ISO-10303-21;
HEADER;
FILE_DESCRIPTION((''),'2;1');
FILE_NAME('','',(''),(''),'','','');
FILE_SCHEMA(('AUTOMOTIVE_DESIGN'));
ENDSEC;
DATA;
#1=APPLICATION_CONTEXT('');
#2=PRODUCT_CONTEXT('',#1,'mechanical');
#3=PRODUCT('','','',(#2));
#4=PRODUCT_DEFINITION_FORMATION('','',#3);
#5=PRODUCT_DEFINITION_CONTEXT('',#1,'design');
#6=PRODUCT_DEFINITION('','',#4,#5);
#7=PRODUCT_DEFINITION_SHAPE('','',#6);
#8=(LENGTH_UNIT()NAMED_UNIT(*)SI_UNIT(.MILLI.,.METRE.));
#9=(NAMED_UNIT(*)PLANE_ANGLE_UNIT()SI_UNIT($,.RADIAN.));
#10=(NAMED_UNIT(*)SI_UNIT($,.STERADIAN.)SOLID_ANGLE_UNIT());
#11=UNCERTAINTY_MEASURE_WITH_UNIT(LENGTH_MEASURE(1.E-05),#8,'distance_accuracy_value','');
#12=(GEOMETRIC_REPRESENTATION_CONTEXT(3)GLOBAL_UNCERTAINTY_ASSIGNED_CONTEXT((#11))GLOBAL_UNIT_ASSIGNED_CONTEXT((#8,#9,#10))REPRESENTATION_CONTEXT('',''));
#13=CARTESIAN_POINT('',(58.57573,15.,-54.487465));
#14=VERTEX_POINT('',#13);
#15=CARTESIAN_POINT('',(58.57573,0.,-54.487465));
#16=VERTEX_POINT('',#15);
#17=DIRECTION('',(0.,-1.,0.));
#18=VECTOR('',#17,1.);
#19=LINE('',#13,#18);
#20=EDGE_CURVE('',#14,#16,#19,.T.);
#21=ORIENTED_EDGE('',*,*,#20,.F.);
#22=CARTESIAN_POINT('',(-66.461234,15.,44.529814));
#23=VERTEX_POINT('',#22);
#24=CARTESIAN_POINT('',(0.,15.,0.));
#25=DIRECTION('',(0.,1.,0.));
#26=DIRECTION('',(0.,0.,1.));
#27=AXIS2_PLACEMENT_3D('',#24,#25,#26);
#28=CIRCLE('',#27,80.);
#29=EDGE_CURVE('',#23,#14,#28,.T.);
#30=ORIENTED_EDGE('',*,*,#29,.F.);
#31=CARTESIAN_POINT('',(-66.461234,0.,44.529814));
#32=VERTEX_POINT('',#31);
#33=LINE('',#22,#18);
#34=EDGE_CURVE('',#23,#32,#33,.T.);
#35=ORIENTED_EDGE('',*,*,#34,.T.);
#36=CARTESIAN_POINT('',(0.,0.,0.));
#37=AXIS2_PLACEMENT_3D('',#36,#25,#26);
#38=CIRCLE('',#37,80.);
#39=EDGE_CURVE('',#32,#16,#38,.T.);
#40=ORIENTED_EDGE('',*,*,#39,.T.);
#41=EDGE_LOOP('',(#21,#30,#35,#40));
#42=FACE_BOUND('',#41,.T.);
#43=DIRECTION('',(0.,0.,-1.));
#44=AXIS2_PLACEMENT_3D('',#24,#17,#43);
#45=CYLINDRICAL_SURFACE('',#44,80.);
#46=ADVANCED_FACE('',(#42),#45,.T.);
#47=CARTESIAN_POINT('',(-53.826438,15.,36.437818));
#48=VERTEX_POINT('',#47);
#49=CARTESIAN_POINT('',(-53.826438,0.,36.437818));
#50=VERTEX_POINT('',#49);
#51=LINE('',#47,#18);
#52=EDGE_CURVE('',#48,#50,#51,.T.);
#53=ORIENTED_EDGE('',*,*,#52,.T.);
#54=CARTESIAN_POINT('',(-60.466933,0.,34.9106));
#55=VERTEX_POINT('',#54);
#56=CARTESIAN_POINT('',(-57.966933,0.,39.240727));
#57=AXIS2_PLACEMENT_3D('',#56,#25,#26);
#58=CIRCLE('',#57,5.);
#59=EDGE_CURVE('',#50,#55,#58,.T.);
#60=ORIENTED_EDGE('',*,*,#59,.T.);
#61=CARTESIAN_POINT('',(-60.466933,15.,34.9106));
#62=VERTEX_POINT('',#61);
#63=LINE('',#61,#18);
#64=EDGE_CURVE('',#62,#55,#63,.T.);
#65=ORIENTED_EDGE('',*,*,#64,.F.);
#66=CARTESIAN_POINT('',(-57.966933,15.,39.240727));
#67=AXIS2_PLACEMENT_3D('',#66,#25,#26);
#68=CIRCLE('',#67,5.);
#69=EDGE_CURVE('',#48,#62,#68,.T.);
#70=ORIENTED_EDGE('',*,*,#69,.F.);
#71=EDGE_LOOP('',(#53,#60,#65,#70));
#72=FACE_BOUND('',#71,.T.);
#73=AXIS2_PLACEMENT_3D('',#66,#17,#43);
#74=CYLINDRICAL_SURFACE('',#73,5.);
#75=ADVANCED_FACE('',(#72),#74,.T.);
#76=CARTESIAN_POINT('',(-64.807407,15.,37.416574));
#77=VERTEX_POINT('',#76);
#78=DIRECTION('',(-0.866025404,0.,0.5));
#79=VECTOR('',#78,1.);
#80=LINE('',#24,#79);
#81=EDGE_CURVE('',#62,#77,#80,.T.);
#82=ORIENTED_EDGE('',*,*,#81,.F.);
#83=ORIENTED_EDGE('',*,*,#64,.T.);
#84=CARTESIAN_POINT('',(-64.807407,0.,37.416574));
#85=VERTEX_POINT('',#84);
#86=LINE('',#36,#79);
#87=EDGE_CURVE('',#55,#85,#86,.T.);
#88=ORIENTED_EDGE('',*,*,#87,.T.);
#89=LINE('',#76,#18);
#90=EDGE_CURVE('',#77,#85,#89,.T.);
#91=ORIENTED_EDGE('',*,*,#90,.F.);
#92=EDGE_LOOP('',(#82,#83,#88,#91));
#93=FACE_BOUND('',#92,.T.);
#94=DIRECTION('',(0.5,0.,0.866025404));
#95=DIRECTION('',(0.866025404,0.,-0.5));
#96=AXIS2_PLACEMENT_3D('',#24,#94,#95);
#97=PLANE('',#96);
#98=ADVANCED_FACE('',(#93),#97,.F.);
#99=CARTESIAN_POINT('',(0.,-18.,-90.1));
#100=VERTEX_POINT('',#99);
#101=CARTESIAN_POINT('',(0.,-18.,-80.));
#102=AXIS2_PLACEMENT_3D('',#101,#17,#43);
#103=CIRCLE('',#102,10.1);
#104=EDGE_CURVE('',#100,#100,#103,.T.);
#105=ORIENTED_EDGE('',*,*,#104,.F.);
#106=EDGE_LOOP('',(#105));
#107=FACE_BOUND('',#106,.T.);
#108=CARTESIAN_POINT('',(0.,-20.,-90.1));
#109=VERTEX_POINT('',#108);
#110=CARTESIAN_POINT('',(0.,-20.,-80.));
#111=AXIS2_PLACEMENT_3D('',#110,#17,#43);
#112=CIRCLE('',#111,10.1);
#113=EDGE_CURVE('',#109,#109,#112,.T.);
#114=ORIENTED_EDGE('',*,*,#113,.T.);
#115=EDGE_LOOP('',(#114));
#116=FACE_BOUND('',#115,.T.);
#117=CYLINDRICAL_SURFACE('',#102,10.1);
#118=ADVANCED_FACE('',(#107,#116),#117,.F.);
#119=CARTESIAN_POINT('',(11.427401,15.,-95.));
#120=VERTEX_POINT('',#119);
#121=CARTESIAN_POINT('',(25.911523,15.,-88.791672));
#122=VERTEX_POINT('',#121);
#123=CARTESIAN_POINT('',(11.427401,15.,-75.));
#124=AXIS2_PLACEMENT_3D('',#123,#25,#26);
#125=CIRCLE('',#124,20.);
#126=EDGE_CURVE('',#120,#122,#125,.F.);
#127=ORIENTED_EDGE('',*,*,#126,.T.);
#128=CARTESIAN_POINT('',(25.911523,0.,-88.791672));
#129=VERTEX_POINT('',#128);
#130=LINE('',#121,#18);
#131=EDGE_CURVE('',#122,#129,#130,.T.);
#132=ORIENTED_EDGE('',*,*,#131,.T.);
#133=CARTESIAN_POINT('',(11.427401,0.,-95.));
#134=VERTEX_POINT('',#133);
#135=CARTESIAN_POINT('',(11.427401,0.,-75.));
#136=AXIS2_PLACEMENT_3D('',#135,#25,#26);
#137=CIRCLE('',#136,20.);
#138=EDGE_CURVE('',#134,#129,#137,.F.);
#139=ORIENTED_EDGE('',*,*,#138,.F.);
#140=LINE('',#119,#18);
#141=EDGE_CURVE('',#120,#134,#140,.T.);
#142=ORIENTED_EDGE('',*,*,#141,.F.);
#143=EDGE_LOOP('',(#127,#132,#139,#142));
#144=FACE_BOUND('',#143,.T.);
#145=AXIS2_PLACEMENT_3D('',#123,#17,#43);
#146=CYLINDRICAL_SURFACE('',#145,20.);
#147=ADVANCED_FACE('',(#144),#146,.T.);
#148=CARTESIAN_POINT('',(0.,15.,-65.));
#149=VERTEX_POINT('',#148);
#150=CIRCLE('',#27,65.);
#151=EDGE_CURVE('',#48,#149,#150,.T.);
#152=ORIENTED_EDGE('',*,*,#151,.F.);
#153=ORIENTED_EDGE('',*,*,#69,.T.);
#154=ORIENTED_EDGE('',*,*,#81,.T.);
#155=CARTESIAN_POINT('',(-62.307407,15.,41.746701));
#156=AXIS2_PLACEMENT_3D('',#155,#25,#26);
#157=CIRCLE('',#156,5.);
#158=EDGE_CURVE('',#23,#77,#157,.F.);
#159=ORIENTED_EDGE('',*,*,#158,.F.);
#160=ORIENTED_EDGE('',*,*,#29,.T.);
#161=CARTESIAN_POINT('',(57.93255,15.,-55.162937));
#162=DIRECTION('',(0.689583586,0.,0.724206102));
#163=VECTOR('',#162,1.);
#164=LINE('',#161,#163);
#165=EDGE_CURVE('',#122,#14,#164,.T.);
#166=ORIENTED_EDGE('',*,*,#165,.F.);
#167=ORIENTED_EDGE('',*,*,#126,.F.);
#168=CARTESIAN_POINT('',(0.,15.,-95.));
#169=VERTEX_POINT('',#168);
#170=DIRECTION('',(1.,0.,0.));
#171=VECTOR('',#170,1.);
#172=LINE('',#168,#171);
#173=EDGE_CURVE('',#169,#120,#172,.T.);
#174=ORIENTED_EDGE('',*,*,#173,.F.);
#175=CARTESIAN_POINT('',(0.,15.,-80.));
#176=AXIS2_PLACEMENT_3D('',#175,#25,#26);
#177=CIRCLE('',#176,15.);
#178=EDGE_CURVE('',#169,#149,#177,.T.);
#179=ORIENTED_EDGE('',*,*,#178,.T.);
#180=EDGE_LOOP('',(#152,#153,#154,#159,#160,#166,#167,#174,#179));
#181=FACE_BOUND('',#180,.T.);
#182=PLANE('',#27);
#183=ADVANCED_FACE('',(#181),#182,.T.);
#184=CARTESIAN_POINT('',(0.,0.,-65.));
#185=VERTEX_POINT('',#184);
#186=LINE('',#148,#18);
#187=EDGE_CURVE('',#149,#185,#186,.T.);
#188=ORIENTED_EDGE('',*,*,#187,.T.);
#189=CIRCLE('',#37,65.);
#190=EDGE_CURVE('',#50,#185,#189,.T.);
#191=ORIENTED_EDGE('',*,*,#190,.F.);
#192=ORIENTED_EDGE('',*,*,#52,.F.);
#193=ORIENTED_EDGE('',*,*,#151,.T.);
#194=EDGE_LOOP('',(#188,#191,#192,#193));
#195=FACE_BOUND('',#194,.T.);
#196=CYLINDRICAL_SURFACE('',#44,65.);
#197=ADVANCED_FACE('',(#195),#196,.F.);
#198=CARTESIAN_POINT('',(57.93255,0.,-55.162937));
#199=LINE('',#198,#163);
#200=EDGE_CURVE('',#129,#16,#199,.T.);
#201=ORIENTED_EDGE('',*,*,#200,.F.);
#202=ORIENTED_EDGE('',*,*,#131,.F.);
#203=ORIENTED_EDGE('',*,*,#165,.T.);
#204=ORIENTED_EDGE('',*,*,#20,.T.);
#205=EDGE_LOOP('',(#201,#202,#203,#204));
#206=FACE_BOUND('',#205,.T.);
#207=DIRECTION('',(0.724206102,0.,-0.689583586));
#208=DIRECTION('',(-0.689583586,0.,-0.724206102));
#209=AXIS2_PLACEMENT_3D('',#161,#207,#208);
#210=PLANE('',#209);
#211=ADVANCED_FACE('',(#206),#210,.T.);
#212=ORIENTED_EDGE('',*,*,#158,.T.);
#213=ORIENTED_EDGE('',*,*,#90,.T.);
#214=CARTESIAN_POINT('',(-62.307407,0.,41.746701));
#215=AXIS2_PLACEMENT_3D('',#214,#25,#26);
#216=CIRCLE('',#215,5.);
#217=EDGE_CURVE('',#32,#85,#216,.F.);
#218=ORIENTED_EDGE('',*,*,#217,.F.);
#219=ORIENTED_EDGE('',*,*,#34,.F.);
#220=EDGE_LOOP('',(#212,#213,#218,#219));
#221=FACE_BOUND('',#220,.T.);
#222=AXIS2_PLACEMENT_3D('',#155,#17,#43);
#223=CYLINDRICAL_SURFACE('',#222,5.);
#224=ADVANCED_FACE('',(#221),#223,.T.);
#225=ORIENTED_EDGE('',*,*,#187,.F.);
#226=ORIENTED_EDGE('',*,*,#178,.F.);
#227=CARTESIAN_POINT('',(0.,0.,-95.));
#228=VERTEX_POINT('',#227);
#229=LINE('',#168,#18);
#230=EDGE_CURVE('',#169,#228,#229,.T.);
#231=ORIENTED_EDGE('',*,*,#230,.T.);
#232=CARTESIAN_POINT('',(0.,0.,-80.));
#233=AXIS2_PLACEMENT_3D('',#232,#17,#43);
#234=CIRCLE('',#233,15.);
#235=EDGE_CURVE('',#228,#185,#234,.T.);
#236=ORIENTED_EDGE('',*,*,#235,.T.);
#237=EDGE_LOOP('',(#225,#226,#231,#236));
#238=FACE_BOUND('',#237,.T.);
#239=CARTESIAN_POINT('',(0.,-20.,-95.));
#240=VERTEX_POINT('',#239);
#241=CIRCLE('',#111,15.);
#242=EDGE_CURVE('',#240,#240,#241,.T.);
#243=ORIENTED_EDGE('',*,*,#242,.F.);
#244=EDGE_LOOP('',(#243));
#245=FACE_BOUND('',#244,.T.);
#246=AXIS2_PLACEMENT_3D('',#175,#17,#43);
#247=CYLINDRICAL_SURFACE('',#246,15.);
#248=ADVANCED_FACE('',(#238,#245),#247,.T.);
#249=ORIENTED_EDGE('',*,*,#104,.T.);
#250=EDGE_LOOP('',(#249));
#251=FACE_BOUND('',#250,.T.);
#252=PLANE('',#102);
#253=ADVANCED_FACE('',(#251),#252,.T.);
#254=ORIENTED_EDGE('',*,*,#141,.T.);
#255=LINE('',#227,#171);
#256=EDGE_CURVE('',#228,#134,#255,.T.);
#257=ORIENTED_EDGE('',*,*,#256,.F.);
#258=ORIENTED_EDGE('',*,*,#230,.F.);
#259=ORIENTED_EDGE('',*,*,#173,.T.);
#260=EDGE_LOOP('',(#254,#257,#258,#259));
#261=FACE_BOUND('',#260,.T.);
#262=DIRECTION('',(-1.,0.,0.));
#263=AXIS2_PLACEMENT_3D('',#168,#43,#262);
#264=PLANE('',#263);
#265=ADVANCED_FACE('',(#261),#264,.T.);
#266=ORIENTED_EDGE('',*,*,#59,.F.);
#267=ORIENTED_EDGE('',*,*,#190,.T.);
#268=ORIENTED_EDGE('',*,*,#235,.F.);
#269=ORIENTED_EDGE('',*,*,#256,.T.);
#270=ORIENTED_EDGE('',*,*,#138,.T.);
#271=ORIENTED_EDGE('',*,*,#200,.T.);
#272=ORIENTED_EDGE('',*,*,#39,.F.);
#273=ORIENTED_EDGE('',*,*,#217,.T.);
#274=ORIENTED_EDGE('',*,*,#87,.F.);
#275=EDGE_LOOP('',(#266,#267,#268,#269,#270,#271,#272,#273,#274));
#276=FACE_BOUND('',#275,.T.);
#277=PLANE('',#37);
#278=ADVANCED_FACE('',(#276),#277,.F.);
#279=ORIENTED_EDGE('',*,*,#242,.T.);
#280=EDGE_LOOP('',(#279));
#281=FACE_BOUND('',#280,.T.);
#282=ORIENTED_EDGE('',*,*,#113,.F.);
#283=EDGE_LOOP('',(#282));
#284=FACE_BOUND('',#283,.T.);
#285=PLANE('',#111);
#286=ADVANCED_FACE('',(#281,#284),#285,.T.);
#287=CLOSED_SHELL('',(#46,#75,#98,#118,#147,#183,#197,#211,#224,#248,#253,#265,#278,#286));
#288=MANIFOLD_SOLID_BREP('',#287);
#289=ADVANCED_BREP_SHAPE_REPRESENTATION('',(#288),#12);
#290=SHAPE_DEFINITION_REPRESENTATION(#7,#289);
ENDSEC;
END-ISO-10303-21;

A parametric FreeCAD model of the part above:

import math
import FreeCAD as App
import Part
import Sketcher
Q = App.Units.Quantity

doc = App.newDocument("Part")
params = doc.addObject("Spreadsheet::Sheet", "Params")
for row, (alias, value) in enumerate([
    ("sketch1_radius", "5 mm"),
    ("sketch1_radius2", "80 mm"),
    ("sketch1_radius3", "20 mm"),
    ("sketch1_radius4", "15 mm"),
    ("sketch1_radius5", "65 mm"),
    ("pad1_length", "15 mm"),
    ("sketch2_diameter", "30 mm"),
    ("pad2_length", "20 mm"),
    ("sketch3_diameter", "20.2 mm"),
    ("pocket1_length", "2 mm"),
], start=1):
    params.set(f"A{row}", alias)
    params.set(f"B{row}", "=" + value)
    params.setAlias(f"B{row}", alias)

body = doc.addObject("PartDesign::Body", "Body")

# Sketch on XZ plane
sketch1 = body.newObject("Sketcher::SketchObject", "Sketch")
sketch1.AttachmentSupport = (doc.getObject("XZ_Plane"), [""])
sketch1.MapMode = "FlatFace"
sketch1.addGeometry([
    Part.ArcOfCircle(Part.Circle(App.Vector(-57.966933, 39.240727, 0), App.Vector(0, 0, 1), 5), math.radians(-120), math.radians(-34.096044)),  # 0
    Part.LineSegment(App.Vector(-60.466933, 34.9106, 0), App.Vector(-64.807407, 37.416574, 0)),  # 1
    Part.ArcOfCircle(Part.Circle(App.Vector(-62.307407, 41.746701, 0), App.Vector(0, 0, 1), 5), math.radians(146.177446), math.radians(240)),  # 2
    Part.ArcOfCircle(Part.Circle(App.Vector(0, 0, 0), App.Vector(0, 0, 1), 80), math.radians(-42.929138), math.radians(146.177446)),  # 3
    Part.LineSegment(App.Vector(58.57573, -54.487465, 0), App.Vector(57.289371, -55.838409, 0)),  # 4
    Part.LineSegment(App.Vector(57.289371, -55.838409, 0), App.Vector(25.911523, -88.791672, 0)),  # 5
    Part.ArcOfCircle(Part.Circle(App.Vector(11.427401, -75, 0), App.Vector(0, 0, 1), 20), math.radians(-90), math.radians(-43.597155)),  # 6
    Part.LineSegment(App.Vector(11.427401, -95, 0), App.Vector(0, -95, 0)),  # 7
    Part.ArcOfCircle(Part.Circle(App.Vector(0, -80, 0), App.Vector(0, 0, 1), 15), math.radians(90), math.radians(270)),  # 8
    Part.ArcOfCircle(Part.Circle(App.Vector(0, 0, 0), App.Vector(0, 0, 1), 65), math.radians(-90), math.radians(145.903956)),  # 9
], False)
sketch1.addConstraint([
    Sketcher.Constraint("Tangent", 0, 1, 1, 1),
    Sketcher.Constraint("Tangent", 1, 2, 2, 2),
    Sketcher.Constraint("Tangent", 2, 1, 3, 2),
    Sketcher.Constraint("Coincident", 3, 1, 4, 1),
    Sketcher.Constraint("Coincident", 4, 2, 5, 1),
    Sketcher.Constraint("Tangent", 5, 2, 6, 2),
    Sketcher.Constraint("Tangent", 6, 1, 7, 1),
    Sketcher.Constraint("Tangent", 7, 2, 8, 2),
    Sketcher.Constraint("Tangent", 8, 1, 9, 1),
    Sketcher.Constraint("Tangent", 9, 2, 0, 2),
    Sketcher.Constraint("Horizontal", 7),
    Sketcher.Constraint("Coincident", 3, 3, -1, 1),
    Sketcher.Constraint("Coincident", 9, 3, -1, 1),
    Sketcher.Constraint("Equal", 0, 2),
    Sketcher.Constraint("PointOnObject", 8, 3, -2),
    Sketcher.Constraint("Parallel", 4, 5),
    Sketcher.Constraint("Radius", 0, Q("5 mm")),
    Sketcher.Constraint("Radius", 3, Q("80 mm")),
    Sketcher.Constraint("Radius", 6, Q("20 mm")),
    Sketcher.Constraint("Radius", 8, Q("15 mm")),
    Sketcher.Constraint("Radius", 9, Q("65 mm")),
    Sketcher.Constraint("Angle", 1, Q("150 deg")),
    Sketcher.Constraint("DistanceX", 7, 2, 7, 1, Q("11.427401 mm")),
    Sketcher.Constraint("DistanceY", -1, 1, 2, 3, Q("41.746701 mm")),
    Sketcher.Constraint("DistanceX", -1, 1, 3, 1, Q("58.57573 mm")),
    Sketcher.Constraint("DistanceX", -1, 1, 4, 2, Q("57.289371 mm")),
])
sketch1.setExpression("Constraints[16]", "Params.sketch1_radius")
sketch1.setExpression("Constraints[17]", "Params.sketch1_radius2")
sketch1.setExpression("Constraints[18]", "Params.sketch1_radius3")
sketch1.setExpression("Constraints[19]", "Params.sketch1_radius4")
sketch1.setExpression("Constraints[20]", "Params.sketch1_radius5")
pad1 = body.newObject("PartDesign::Pad", "Pad")
pad1.Profile = sketch1
pad1.setExpression("Length", "Params.pad1_length")
pad1.Reversed = True

# Sketch on XZ plane
sketch2 = body.newObject("Sketcher::SketchObject", "Sketch001")
sketch2.AttachmentSupport = (doc.getObject("XZ_Plane"), [""])
sketch2.MapMode = "FlatFace"
sketch2.AttachmentOffset = App.Placement(App.Vector(0, 0, 20), App.Rotation())
sketch2.addGeometry(Part.Circle(App.Vector(0, -80, 0), App.Vector(0, 0, 1), 15), False)
sketch2.addConstraint([
    Sketcher.Constraint("PointOnObject", 0, 3, -2),
    Sketcher.Constraint("Diameter", 0, Q("30 mm")),
    Sketcher.Constraint("DistanceY", 0, 3, -1, 1, Q("80 mm")),
])
sketch2.setExpression("Constraints[1]", "Params.sketch2_diameter")
pad2 = body.newObject("PartDesign::Pad", "Pad001")
pad2.Profile = sketch2
pad2.setExpression("Length", "Params.pad2_length")
pad2.Reversed = True

# Sketch on XZ plane
sketch3 = body.newObject("Sketcher::SketchObject", "Sketch002")
sketch3.AttachmentSupport = (doc.getObject("XZ_Plane"), [""])
sketch3.MapMode = "FlatFace"
sketch3.AttachmentOffset = App.Placement(App.Vector(0, 0, 20), App.Rotation())
sketch3.addGeometry(Part.Circle(App.Vector(0, -80, 0), App.Vector(0, 0, 1), 10.1), False)
sketch3.addConstraint([
    Sketcher.Constraint("PointOnObject", 0, 3, -2),
    Sketcher.Constraint("Diameter", 0, Q("20.2 mm")),
    Sketcher.Constraint("DistanceY", 0, 3, -1, 1, Q("80 mm")),
])
sketch3.setExpression("Constraints[1]", "Params.sketch3_diameter")
pocket1 = body.newObject("PartDesign::Pocket", "Pocket")
pocket1.Profile = sketch3
pocket1.setExpression("Length", "Params.pocket1_length")

doc.recompute()
